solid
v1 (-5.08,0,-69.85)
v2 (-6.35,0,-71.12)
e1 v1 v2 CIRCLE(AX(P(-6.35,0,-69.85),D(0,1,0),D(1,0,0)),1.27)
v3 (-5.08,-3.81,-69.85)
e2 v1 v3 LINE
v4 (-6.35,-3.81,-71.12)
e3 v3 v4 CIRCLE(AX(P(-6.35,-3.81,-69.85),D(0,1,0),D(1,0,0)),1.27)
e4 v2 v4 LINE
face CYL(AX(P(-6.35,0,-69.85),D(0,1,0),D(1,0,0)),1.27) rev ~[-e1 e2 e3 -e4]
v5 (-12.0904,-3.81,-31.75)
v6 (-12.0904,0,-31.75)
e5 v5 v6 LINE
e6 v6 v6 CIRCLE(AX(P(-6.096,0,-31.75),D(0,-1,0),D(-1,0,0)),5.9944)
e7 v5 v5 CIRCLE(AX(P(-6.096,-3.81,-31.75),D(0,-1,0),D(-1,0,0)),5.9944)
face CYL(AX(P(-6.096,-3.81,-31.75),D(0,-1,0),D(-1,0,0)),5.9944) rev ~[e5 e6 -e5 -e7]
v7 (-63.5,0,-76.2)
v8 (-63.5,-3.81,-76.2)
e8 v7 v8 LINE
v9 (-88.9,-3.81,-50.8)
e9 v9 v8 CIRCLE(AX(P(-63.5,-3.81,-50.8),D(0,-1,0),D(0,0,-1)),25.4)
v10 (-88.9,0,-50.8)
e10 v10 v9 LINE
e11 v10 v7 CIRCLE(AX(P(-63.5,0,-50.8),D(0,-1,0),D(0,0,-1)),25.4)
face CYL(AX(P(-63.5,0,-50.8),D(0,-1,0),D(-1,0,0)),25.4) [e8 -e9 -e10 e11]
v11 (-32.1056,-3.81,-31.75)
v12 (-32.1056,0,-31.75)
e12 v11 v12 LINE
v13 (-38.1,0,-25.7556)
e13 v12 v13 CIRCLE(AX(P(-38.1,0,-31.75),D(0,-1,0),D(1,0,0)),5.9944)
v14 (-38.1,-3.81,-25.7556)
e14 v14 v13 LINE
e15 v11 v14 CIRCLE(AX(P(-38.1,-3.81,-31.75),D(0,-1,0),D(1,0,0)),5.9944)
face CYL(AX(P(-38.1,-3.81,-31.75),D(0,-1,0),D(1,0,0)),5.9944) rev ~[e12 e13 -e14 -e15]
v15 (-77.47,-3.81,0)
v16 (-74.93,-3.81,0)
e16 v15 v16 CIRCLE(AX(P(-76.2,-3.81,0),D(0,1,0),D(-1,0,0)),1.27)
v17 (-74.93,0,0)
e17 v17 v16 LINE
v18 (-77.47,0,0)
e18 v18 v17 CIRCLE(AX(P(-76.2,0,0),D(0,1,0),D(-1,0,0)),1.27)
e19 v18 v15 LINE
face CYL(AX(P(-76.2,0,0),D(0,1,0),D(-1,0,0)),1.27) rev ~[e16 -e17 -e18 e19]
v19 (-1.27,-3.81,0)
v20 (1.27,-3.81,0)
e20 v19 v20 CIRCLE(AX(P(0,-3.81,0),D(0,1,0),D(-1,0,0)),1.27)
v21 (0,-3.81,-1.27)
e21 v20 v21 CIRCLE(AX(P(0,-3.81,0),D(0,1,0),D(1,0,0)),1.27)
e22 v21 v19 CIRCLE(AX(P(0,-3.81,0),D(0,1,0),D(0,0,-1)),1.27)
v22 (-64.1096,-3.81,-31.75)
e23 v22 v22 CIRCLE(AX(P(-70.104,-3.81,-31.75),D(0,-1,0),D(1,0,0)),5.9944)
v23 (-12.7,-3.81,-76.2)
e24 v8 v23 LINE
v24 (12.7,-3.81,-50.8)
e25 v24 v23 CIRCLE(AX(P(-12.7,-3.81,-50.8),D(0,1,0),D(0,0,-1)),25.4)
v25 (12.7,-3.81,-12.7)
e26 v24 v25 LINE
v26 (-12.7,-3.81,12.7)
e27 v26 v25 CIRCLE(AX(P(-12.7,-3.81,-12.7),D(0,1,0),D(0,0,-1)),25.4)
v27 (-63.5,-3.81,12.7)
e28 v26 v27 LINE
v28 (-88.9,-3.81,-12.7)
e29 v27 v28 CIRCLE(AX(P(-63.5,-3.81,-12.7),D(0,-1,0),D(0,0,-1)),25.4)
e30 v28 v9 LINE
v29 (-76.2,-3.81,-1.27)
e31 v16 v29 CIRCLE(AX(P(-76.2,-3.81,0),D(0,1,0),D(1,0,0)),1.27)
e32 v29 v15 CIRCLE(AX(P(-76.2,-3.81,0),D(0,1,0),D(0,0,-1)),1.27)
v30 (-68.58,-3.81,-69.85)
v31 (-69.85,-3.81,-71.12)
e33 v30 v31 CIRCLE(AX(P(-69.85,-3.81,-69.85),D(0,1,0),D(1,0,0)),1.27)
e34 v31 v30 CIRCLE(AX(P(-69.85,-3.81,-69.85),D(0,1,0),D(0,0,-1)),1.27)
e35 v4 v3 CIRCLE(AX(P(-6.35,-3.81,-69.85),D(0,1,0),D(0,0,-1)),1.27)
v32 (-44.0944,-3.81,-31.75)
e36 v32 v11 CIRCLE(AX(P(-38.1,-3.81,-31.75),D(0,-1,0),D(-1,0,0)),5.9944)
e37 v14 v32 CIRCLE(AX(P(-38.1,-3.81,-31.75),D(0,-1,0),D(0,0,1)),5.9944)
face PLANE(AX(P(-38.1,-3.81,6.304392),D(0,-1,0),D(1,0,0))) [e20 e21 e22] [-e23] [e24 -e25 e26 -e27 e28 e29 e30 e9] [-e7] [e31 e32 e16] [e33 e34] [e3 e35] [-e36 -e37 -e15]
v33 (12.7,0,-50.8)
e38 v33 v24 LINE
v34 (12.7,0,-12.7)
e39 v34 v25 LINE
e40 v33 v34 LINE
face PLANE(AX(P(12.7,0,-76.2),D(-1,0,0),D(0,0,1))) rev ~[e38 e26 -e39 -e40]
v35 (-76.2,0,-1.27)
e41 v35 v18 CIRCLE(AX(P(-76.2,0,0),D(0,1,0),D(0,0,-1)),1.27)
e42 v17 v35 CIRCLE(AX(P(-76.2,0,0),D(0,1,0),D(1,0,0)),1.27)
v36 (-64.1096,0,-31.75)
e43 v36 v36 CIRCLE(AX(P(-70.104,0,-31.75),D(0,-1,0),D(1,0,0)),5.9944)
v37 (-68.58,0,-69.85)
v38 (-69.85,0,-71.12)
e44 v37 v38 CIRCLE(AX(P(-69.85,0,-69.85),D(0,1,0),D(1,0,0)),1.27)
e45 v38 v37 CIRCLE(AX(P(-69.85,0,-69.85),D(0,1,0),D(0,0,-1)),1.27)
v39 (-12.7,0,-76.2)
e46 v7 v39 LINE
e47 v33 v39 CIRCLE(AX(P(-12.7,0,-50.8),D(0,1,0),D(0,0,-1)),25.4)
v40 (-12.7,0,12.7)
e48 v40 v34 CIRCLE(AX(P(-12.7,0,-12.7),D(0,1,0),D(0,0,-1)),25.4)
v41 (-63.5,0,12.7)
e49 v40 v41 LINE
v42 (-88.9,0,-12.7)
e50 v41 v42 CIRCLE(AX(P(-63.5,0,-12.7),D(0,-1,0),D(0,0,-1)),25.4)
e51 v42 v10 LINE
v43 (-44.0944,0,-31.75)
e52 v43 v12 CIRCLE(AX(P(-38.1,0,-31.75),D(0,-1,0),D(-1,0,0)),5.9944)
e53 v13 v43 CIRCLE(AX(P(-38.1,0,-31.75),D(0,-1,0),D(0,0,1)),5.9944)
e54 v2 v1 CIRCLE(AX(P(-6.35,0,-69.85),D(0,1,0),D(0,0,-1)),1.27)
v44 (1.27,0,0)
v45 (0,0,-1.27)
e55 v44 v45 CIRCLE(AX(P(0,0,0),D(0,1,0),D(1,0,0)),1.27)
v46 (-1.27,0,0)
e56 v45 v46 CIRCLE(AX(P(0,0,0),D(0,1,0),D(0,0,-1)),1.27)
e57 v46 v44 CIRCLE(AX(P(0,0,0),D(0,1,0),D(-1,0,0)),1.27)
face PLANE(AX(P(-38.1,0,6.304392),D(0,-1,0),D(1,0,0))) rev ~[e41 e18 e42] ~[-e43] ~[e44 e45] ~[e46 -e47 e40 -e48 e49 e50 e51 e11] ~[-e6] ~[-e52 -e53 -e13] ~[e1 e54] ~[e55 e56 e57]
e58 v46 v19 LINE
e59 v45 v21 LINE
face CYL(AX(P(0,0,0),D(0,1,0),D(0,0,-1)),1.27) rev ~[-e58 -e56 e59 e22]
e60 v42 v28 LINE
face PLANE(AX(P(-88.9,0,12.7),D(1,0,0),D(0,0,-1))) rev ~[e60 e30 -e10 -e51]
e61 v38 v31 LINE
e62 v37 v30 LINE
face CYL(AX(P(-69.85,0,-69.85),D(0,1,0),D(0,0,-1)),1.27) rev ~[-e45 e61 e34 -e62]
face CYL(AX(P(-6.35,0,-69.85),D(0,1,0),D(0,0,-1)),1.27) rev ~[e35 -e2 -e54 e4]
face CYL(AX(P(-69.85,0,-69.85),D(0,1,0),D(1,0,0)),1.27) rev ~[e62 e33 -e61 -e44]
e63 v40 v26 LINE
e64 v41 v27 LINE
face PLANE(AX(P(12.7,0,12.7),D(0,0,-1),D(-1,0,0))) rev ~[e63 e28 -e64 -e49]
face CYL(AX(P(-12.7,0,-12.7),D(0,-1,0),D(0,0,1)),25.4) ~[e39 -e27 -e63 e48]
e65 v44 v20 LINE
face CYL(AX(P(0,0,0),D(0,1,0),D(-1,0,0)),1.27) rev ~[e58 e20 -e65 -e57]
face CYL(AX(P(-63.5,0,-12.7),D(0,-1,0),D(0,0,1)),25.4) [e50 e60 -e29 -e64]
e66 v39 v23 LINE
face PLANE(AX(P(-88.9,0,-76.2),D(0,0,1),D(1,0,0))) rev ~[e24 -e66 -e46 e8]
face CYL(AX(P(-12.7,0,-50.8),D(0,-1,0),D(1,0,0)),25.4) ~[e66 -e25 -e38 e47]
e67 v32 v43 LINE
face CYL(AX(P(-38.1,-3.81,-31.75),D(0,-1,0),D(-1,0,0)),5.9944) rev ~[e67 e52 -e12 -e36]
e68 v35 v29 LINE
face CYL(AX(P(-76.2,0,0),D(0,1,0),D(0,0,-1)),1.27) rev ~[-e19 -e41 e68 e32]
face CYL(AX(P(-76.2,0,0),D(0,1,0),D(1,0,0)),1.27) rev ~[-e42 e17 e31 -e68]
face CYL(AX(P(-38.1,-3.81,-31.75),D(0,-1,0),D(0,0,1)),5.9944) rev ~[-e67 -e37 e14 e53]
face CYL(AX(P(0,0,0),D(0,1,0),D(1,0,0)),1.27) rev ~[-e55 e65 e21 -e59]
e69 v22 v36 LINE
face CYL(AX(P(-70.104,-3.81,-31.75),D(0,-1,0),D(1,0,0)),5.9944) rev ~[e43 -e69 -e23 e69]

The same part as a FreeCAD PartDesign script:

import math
import FreeCAD as App
import Part
import Sketcher
from FreeCAD import Vector
Q = App.Units.Quantity


def edges_at(feature, points):
    """Names of the edges that pass closest to the given points."""
    edges = feature.Shape.Edges
    near = lambda p: min(range(len(edges)), key=lambda i: edges[i].distToShape(Part.Vertex(*p))[0])
    return sorted({f"Edge{near(p) + 1}" for p in points})


def add_polygon(sketch, points):
    """Adds a closed chain of lines whose ends are joined by coincident constraints."""
    first, n = sketch.GeometryCount, len(points)
    for a, b in zip(points, points[1:] + points[:1]):
        sketch.addGeometry(Part.LineSegment(App.Vector(*a, 0), App.Vector(*b, 0)), False)
    for i in range(n):
        sketch.addConstraint(Sketcher.Constraint("Coincident", first + i, 2, first + (i + 1) % n, 1))

doc = App.newDocument("Part")
params = doc.addObject("Spreadsheet::Sheet", "Params")
for row, (alias, value) in enumerate([
    ("sketch1_width", "4 in"),
    ("sketch1_radius", "0.05 in"),
    ("sketch1_height", "3.5 in"),
    ("pad1_length", "0.15 in"),
    ("sketch2_diameter", "0.472 in"),
    ("pocket1_length", "1 in"),
    ("fillet_radius", "1 in"),
], start=1):
    params.set(f"A{row}", alias)
    params.set(f"B{row}", "=" + value)
    params.setAlias(f"B{row}", alias)

body = doc.addObject("PartDesign::Body", "Body")

# Sketch on XZ plane
sketch1 = doc.addObject("Sketcher::SketchObject", "Sketch")
body.addObject(sketch1)
sketch1.AttachmentSupport = (doc.XZ_Plane, [""])
sketch1.MapMode = "FlatFace"
add_polygon(sketch1, [(12.7, 12.7), (-88.9, 12.7), (-88.9, -76.2), (12.7, -76.2)])  # lines 0-3
sketch1.addGeometry(Part.ArcOfCircle(Part.Circle(Vector(0, 0, 0), Vector(0, 0, 1), 1.27), math.radians(0), math.radians(180)), False)  # 4
sketch1.addGeometry(Part.ArcOfCircle(Part.Circle(Vector(0, 0, 0), Vector(0, 0, 1), 1.27), math.radians(-90), math.radians(0)), False)  # 5
sketch1.addGeometry(Part.ArcOfCircle(Part.Circle(Vector(0, 0, 0), Vector(0, 0, 1), 1.27), math.radians(180), math.radians(270)), False)  # 6
sketch1.addGeometry(Part.ArcOfCircle(Part.Circle(Vector(-6.35, -69.85, 0), Vector(0, 0, 1), 1.27), math.radians(0), math.radians(270)), False)  # 7
sketch1.addGeometry(Part.ArcOfCircle(Part.Circle(Vector(-6.35, -69.85, 0), Vector(0, 0, 1), 1.27), math.radians(-90), math.radians(0)), False)  # 8
sketch1.addGeometry(Part.ArcOfCircle(Part.Circle(Vector(-69.85, -69.85, 0), Vector(0, 0, 1), 1.27), math.radians(0), math.radians(270)), False)  # 9
sketch1.addGeometry(Part.ArcOfCircle(Part.Circle(Vector(-69.85, -69.85, 0), Vector(0, 0, 1), 1.27), math.radians(-90), math.radians(0)), False)  # 10
sketch1.addGeometry(Part.ArcOfCircle(Part.Circle(Vector(-76.2, 0, 0), Vector(0, 0, 1), 1.27), math.radians(0), math.radians(180)), False)  # 11
sketch1.addGeometry(Part.ArcOfCircle(Part.Circle(Vector(-76.2, 0, 0), Vector(0, 0, 1), 1.27), math.radians(-90), math.radians(0)), False)  # 12
sketch1.addGeometry(Part.ArcOfCircle(Part.Circle(Vector(-76.2, 0, 0), Vector(0, 0, 1), 1.27), math.radians(180), math.radians(270)), False)  # 13
sketch1.addConstraint(Sketcher.Constraint("Tangent", 4, 1, 5, 2))
sketch1.addConstraint(Sketcher.Constraint("Tangent", 5, 1, 6, 2))
sketch1.addConstraint(Sketcher.Constraint("Tangent", 6, 1, 4, 2))
sketch1.addConstraint(Sketcher.Constraint("Tangent", 7, 1, 8, 2))
sketch1.addConstraint(Sketcher.Constraint("Coincident", 8, 1, 7, 2))
sketch1.addConstraint(Sketcher.Constraint("Tangent", 9, 1, 10, 2))
sketch1.addConstraint(Sketcher.Constraint("Coincident", 10, 1, 9, 2))
sketch1.addConstraint(Sketcher.Constraint("Tangent", 11, 1, 12, 2))
sketch1.addConstraint(Sketcher.Constraint("Tangent", 12, 1, 13, 2))
sketch1.addConstraint(Sketcher.Constraint("Tangent", 13, 1, 11, 2))
sketch1.addConstraint(Sketcher.Constraint("Horizontal", 0))
sketch1.addConstraint(Sketcher.Constraint("Vertical", 1))
sketch1.addConstraint(Sketcher.Constraint("Horizontal", 2))
sketch1.addConstraint(Sketcher.Constraint("Vertical", 3))
sketch1.addConstraint(Sketcher.Constraint("Coincident", 4, 3, -1, 1))
sketch1.addConstraint(Sketcher.Constraint("Equal", 6, 7))
sketch1.addConstraint(Sketcher.Constraint("Equal", 8, 9))
sketch1.addConstraint(Sketcher.Constraint("Equal", 10, 11))
sketch1.addConstraint(Sketcher.Constraint("PointOnObject", 11, 3, -1))
sketch1.addConstraint(Sketcher.Constraint("PointOnObject", 4, 1, -1))
sketch1.addConstraint(Sketcher.Constraint("PointOnObject", 5, 1, -2))
sketch1.addConstraint(Sketcher.Constraint("PointOnObject", 6, 1, -1))
sketch1.addConstraint(Sketcher.Constraint("PointOnObject", 11, 1, -1))
sketch1.addConstraint(Sketcher.Constraint("PointOnObject", 13, 1, -1))
sketch1.addConstraint(Sketcher.Constraint("Horizontal", 8, 3, 9, 3))
sketch1.addConstraint(Sketcher.Constraint("Horizontal", 10, 3, 7, 1))
sketch1.addConstraint(Sketcher.Constraint("Horizontal", 7, 1, 9, 1))
sketch1.addConstraint(Sketcher.Constraint("Vertical", 7, 3, 8, 1))
sketch1.addConstraint(Sketcher.Constraint("Vertical", 9, 3, 10, 1))
sketch1.addConstraint(Sketcher.Constraint("Vertical", 13, 3, 12, 1))
sketch1.addConstraint(Sketcher.Constraint("DistanceX", 0, 2, 0, 1, Q("4 in")))
sketch1.addConstraint(Sketcher.Constraint("Radius", 4, Q("0.05 in")))
sketch1.addConstraint(Sketcher.Constraint("DistanceY", 1, 2, 1, 1, Q("3.5 in")))
sketch1.addConstraint(Sketcher.Constraint("DistanceX", 11, 3, -1, 1, Q("3 in")))
sketch1.addConstraint(Sketcher.Constraint("DistanceY", 1, 2, -1, 1, Q("3 in")))
sketch1.addConstraint(Sketcher.Constraint("DistanceX", 0, 2, -1, 1, Q("3.5 in")))
sketch1.addConstraint(Sketcher.Constraint("DistanceX", 7, 1, -1, 1, Q("0.2 in")))
sketch1.addConstraint(Sketcher.Constraint("DistanceY", 8, 1, -1, 1, Q("2.8 in")))
sketch1.addConstraint(Sketcher.Constraint("DistanceX", 9, 1, -1, 1, Q("2.7 in")))
sketch1.setExpression("Constraints[34]", "Params.sketch1_width")
sketch1.setExpression("Constraints[35]", "Params.sketch1_radius")
sketch1.setExpression("Constraints[36]", "Params.sketch1_height")
pad1 = doc.addObject("PartDesign::Pad", "Pad")
body.addObject(pad1)
pad1.Profile = sketch1
pad1.setExpression("Length", "Params.pad1_length")

# Sketch on XZ plane
sketch2 = doc.addObject("Sketcher::SketchObject", "Sketch001")
body.addObject(sketch2)
sketch2.AttachmentSupport = (doc.XZ_Plane, [""])
sketch2.MapMode = "FlatFace"
sketch2.AttachmentOffset = App.Placement(Vector(0, 0, 0.15 * 25.4), App.Rotation())
sketch2.addGeometry(Part.Circle(Vector(-70.104, -31.75, 0), Vector(0, 0, 1), 5.9944), False)
sketch2.addGeometry(Part.ArcOfCircle(Part.Circle(Vector(-38.1, -31.75, 0), Vector(0, 0, 1), 5.9944), math.radians(90), math.radians(180)), False)
sketch2.addGeometry(Part.ArcOfCircle(Part.Circle(Vector(-38.1, -31.75, 0), Vector(0, 0, 1), 5.9944), math.radians(180), math.radians(360)), False)
sketch2.addGeometry(Part.ArcOfCircle(Part.Circle(Vector(-38.1, -31.75, 0), Vector(0, 0, 1), 5.9944), math.radians(0), math.radians(90)), False)
sketch2.addGeometry(Part.Circle(Vector(-6.096, -31.75, 0), Vector(0, 0, 1), 5.9944), False)
sketch2.addConstraint(Sketcher.Constraint("Tangent", 1, 2, 2, 1))
sketch2.addConstraint(Sketcher.Constraint("Tangent", 2, 2, 3, 1))
sketch2.addConstraint(Sketcher.Constraint("Tangent", 3, 2, 1, 1))
sketch2.addConstraint(Sketcher.Constraint("Equal", 0, 1))
sketch2.addConstraint(Sketcher.Constraint("Equal", 3, 4))
sketch2.addConstraint(Sketcher.Constraint("Horizontal", 0, 3, 1, 3))
sketch2.addConstraint(Sketcher.Constraint("Horizontal", 3, 3, 4, 3))
sketch2.addConstraint(Sketcher.Constraint("Horizontal", 4, 3, 1, 2))
sketch2.addConstraint(Sketcher.Constraint("Horizontal", 1, 2, 2, 2))
sketch2.addConstraint(Sketcher.Constraint("Vertical", 2, 3, 3, 2))
sketch2.addConstraint(Sketcher.Constraint("Diameter", 0, Q("0.472 in")))
sketch2.addConstraint(Sketcher.Constraint("DistanceX", 1, 3, -1, 1, Q("1.5 in")))
sketch2.addConstraint(Sketcher.Constraint("DistanceX", 0, 3, -1, 1, Q("2.76 in")))
sketch2.addConstraint(Sketcher.Constraint("DistanceY", 0, 3, -1, 1, Q("1.25 in")))
sketch2.addConstraint(Sketcher.Constraint("DistanceX", 4, 3, -1, 1, Q("0.24 in")))
sketch2.setExpression("Constraints[10]", "Params.sketch2_diameter")
pocket1 = doc.addObject("PartDesign::Pocket", "Pocket")
body.addObject(pocket1)
pocket1.Profile = sketch2
pocket1.setExpression("Length", "Params.pocket1_length")
doc.recompute()

fillet = doc.addObject("PartDesign::Fillet", "Fillet")
body.addObject(fillet)
fillet.Base = (pocket1, edges_at(pocket1, [
    (12.7, -1.905, 12.7),
    (-88.9, -1.905, 12.7),
    (12.7, -1.905, -76.2),
    (-88.9, -1.905, -76.2),
]))
fillet.setExpression("Radius", "Params.fillet_radius")

doc.recompute()
